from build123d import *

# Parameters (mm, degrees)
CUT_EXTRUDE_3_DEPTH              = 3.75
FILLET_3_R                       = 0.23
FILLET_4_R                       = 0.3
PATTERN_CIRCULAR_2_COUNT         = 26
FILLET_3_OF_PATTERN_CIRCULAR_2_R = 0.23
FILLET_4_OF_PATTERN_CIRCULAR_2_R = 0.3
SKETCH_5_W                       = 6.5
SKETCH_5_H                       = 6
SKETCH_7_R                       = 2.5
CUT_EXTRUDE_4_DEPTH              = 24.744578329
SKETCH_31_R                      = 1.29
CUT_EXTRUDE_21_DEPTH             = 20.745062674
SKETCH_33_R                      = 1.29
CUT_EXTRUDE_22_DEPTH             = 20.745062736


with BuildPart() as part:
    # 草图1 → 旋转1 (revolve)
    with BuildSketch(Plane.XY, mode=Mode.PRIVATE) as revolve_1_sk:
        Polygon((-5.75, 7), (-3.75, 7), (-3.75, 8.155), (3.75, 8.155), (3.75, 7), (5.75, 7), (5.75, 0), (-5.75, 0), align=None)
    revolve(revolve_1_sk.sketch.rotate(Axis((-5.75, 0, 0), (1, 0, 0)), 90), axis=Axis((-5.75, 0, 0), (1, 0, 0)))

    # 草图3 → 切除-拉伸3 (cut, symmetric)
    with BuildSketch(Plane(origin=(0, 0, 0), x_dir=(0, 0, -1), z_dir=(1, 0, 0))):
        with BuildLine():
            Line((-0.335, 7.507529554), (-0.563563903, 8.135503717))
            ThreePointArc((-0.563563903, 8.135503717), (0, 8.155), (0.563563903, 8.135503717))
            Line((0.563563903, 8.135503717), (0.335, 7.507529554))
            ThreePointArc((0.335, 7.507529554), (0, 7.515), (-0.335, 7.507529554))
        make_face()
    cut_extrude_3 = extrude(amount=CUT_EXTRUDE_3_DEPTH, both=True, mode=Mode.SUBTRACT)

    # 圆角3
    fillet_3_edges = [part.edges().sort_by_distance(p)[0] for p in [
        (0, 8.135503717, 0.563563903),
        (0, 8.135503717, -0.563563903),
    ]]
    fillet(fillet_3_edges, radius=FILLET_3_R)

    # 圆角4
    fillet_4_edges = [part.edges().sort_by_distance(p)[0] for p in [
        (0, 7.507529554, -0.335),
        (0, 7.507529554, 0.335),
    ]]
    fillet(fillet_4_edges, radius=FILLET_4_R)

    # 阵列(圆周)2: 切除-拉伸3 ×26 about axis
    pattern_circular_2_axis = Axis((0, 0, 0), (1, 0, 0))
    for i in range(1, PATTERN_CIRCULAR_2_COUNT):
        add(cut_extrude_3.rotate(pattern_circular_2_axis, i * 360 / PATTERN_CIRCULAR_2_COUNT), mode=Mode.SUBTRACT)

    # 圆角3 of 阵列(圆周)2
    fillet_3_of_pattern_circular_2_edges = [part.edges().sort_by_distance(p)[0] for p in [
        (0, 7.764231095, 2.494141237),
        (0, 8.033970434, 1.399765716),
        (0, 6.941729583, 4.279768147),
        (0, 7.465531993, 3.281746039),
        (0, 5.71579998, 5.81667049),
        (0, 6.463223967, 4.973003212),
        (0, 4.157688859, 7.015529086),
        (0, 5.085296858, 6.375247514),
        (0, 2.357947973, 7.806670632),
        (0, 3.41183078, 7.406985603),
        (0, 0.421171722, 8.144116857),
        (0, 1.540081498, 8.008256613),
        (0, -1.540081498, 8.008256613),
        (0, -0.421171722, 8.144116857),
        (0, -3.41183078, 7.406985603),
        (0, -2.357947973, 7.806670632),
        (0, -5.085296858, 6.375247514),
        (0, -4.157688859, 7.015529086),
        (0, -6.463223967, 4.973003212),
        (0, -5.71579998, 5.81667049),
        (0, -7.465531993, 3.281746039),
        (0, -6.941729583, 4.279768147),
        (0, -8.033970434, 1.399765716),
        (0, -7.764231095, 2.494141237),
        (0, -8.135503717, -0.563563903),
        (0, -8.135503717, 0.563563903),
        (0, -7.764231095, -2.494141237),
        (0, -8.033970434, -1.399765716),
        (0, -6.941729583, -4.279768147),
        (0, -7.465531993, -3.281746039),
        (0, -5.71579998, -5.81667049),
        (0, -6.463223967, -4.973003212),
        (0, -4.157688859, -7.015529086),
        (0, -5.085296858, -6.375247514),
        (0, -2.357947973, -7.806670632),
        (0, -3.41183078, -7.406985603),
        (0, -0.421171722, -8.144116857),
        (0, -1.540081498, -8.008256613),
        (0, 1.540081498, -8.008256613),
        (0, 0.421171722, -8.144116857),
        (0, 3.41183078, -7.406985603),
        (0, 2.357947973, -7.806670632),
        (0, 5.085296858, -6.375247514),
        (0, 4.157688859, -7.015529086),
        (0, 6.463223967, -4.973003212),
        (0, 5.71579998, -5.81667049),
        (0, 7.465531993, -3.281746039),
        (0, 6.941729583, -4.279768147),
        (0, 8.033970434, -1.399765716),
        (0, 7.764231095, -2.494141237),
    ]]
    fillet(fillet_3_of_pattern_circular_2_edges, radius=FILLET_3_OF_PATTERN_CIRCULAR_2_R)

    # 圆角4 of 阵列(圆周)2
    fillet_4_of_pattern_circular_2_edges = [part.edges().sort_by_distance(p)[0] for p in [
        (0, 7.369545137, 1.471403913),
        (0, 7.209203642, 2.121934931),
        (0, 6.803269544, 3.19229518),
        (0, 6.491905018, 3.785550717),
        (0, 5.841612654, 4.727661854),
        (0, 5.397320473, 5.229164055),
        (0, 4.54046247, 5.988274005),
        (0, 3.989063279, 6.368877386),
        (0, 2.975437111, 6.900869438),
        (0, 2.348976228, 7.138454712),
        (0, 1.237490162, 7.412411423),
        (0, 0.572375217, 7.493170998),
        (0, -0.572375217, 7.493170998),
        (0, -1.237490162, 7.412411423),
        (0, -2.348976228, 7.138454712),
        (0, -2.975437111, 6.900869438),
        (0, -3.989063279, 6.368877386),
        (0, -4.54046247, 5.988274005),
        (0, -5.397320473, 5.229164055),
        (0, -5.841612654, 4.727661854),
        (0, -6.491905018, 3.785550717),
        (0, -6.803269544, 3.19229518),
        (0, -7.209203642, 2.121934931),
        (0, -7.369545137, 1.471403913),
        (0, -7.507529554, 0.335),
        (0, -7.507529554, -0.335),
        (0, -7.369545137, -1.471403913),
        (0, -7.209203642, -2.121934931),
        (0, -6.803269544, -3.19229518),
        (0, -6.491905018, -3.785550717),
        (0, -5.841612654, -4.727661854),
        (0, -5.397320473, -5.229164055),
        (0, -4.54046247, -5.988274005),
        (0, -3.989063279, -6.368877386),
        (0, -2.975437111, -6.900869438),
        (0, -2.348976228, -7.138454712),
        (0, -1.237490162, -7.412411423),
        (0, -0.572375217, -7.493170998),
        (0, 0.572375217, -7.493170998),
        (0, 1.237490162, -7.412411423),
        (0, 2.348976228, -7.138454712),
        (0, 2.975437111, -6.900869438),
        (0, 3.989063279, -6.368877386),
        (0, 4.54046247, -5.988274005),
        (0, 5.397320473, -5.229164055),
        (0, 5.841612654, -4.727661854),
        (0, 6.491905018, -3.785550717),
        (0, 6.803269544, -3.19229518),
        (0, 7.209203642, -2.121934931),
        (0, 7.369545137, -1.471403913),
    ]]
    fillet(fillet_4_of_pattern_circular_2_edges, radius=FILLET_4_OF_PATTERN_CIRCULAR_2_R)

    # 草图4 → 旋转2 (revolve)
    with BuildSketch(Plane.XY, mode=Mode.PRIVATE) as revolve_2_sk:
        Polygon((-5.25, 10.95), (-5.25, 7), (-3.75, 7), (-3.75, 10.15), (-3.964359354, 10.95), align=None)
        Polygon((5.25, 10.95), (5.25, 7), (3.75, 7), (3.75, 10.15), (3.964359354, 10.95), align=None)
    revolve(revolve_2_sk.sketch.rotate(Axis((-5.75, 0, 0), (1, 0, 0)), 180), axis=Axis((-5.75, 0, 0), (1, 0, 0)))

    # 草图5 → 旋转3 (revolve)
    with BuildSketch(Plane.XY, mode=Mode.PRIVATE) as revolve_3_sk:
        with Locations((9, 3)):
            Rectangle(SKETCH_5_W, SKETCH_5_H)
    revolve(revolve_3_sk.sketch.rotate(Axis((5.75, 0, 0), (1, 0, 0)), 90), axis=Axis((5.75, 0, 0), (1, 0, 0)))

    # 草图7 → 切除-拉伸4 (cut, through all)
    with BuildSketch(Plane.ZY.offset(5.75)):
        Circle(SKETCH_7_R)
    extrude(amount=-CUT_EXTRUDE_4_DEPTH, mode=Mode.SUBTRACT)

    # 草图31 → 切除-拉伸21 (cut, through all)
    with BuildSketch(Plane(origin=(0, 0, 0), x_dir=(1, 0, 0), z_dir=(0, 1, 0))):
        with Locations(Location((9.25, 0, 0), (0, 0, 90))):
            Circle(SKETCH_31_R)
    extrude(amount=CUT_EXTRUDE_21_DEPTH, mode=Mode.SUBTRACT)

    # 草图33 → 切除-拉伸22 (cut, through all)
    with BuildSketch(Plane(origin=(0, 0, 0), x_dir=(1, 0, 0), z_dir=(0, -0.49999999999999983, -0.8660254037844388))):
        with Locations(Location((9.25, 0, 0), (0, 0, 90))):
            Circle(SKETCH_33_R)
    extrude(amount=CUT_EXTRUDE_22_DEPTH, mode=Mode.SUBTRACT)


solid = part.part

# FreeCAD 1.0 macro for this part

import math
import FreeCAD as App
import Part
import Sketcher

V = App.Vector
Q = App.Units.Quantity


def edges_at(feature, points):
    """Names of the edges that pass closest to the given points."""
    edges = feature.Shape.Edges
    near = lambda p: min(range(len(edges)), key=lambda i: edges[i].distToShape(Part.Vertex(*p))[0])
    return sorted({f"Edge{near(p) + 1}" for p in points})

doc = App.newDocument("Part")
body = doc.addObject("PartDesign::Body", "Body")

# Sketch on XY plane
sketch1 = doc.addObject("Sketcher::SketchObject", "Sketch")
body.addObject(sketch1)
sketch1.AttachmentSupport = (doc.XY_Plane, [""])
sketch1.MapMode = "FlatFace"
sketch1.addGeometry(Part.LineSegment(V(-3.8, 7, 0), V(-5.8, 7, 0)), False)
sketch1.addGeometry(Part.LineSegment(V(-5.8, 7, 0), V(-5.8, 0, 0)), False)
sketch1.addGeometry(Part.LineSegment(V(-5.8, 0, 0), V(5.8, 0, 0)), False)
sketch1.addGeometry(Part.LineSegment(V(5.8, 0, 0), V(5.8, 7, 0)), False)
sketch1.addGeometry(Part.LineSegment(V(5.8, 7, 0), V(3.8, 7, 0)), False)
sketch1.addGeometry(Part.LineSegment(V(3.8, 7, 0), V(3.8, 8.2, 0)), False)
sketch1.addGeometry(Part.LineSegment(V(3.8, 8.2, 0), V(-3.8, 8.2, 0)), False)
sketch1.addGeometry(Part.LineSegment(V(-3.8, 8.2, 0), V(-3.8, 7, 0)), False)
sketch1.addConstraint(Sketcher.Constraint("Coincident", 0, 2, 1, 1))
sketch1.addConstraint(Sketcher.Constraint("Coincident", 1, 2, 2, 1))
sketch1.addConstraint(Sketcher.Constraint("Coincident", 2, 2, 3, 1))
sketch1.addConstraint(Sketcher.Constraint("Coincident", 3, 2, 4, 1))
sketch1.addConstraint(Sketcher.Constraint("Coincident", 4, 2, 5, 1))
sketch1.addConstraint(Sketcher.Constraint("Coincident", 5, 2, 6, 1))
sketch1.addConstraint(Sketcher.Constraint("Coincident", 6, 2, 7, 1))
sketch1.addConstraint(Sketcher.Constraint("Coincident", 7, 2, 0, 1))
sketch1.addConstraint(Sketcher.Constraint("Horizontal", 0))
sketch1.addConstraint(Sketcher.Constraint("Vertical", 1))
sketch1.addConstraint(Sketcher.Constraint("Horizontal", 2))
sketch1.addConstraint(Sketcher.Constraint("Vertical", 3))
sketch1.addConstraint(Sketcher.Constraint("Horizontal", 4))
sketch1.addConstraint(Sketcher.Constraint("Vertical", 5))
sketch1.addConstraint(Sketcher.Constraint("Horizontal", 6))
sketch1.addConstraint(Sketcher.Constraint("Vertical", 7))
sketch1.addConstraint(Sketcher.Constraint("Symmetric", 1, 2, 2, 2, -1, 1))
sketch1.addConstraint(Sketcher.Constraint("Symmetric", 4, 2, 7, 2, -2))
sketch1.addConstraint(Sketcher.Constraint("DistanceX", 0, 2, 0, 1, 2.0))
sketch1.addConstraint(Sketcher.Constraint("DistanceY", 1, 2, 1, 1, 7.0))
sketch1.addConstraint(Sketcher.Constraint("DistanceX", 2, 1, 2, 2, 11.5))
sketch1.addConstraint(Sketcher.Constraint("DistanceY", 5, 1, 5, 2, 1.155))
revolution = doc.addObject("PartDesign::Revolution", "Revolution")
body.addObject(revolution)
revolution.Profile = sketch1
revolution.ReferenceAxis = (sketch1, ["H_Axis"])
revolution.Angle = 360

# Sketch on YZ plane
sketch2 = doc.addObject("Sketcher::SketchObject", "Sketch001")
body.addObject(sketch2)
sketch2.AttachmentSupport = (doc.YZ_Plane, [""])
sketch2.MapMode = "FlatFace"
sketch2.addGeometry(Part.LineSegment(V(8.1, 0.6, 0), V(7.5, 0.3, 0)), False)
sketch2.addGeometry(Part.ArcOfCircle(Part.Circle(V(0, 0, 0), V(0, 0, 1), 7.5), math.radians(-2.55), math.radians(2.55)), False)
sketch2.addGeometry(Part.LineSegment(V(7.5, -0.3, 0), V(8.1, -0.6, 0)), False)
sketch2.addGeometry(Part.ArcOfCircle(Part.Circle(V(0, 0, 0), V(0, 0, 1), 8.2), math.radians(-3.96), math.radians(3.96)), False)
sketch2.addConstraint(Sketcher.Constraint("Coincident", 0, 2, 1, 2))
sketch2.addConstraint(Sketcher.Constraint("Coincident", 1, 1, 2, 1))
sketch2.addConstraint(Sketcher.Constraint("Coincident", 2, 2, 3, 1))
sketch2.addConstraint(Sketcher.Constraint("Coincident", 3, 2, 0, 1))
sketch2.addConstraint(Sketcher.Constraint("Coincident", 1, 3, -1, 1))
sketch2.addConstraint(Sketcher.Constraint("Coincident", 3, 3, -1, 1))
sketch2.addConstraint(Sketcher.Constraint("Vertical", 0, 2, 1, 1))
sketch2.addConstraint(Sketcher.Constraint("Vertical", 2, 2, 3, 2))
sketch2.addConstraint(Sketcher.Constraint("Angle", 0, Q("-160 deg")))
sketch2.addConstraint(Sketcher.Constraint("Radius", 1, 7.515))
sketch2.addConstraint(Sketcher.Constraint("Radius", 3, 8.155))
sketch2.addConstraint(Sketcher.Constraint("DistanceY", 1, 1, 0, 2, 0.67))
pocket1 = doc.addObject("PartDesign::Pocket", "Pocket")
body.addObject(pocket1)
pocket1.Profile = sketch2
pocket1.Length = 7.5
pocket1.Midplane = True
doc.recompute()

fillet = doc.addObject("PartDesign::Fillet", "Fillet")
body.addObject(fillet)
fillet.Base = (pocket1, edges_at(pocket1, [(0, 8.136, 0.564), (0, 8.136, -0.564)]))
fillet.Radius = 0.23
doc.recompute()

fillet2 = doc.addObject("PartDesign::Fillet", "Fillet001")
body.addObject(fillet2)
fillet2.Base = (fillet, edges_at(fillet, [(0, 7.508, -0.335), (0, 7.508, 0.335)]))
fillet2.Radius = 0.3
doc.recompute()

polarpattern = doc.addObject("PartDesign::PolarPattern", "PolarPattern")
body.addObject(polarpattern)
polarpattern.Originals = [pocket1]
polarpattern.Axis = (doc.X_Axis, [""])
polarpattern.Angle = 360
polarpattern.Occurrences = 26
body.Tip = polarpattern
doc.recompute()

fillet3 = doc.addObject("PartDesign::Fillet", "Fillet002")
body.addObject(fillet3)
fillet3.Base = (polarpattern, edges_at(polarpattern, [
    (0, 7.764, 2.494),
    (0, 8.034, 1.4),
    (0, 6.942, 4.28),
    (0, 7.466, 3.282),
    (0, 5.716, 5.817),
    (0, 6.463, 4.973),
    (0, 4.158, 7.016),
    (0, 5.085, 6.375),
    (0, 2.358, 7.807),
    (0, 3.412, 7.407),
    (0, 0.421, 8.144),
    (0, 1.54, 8.008),
    (0, -1.54, 8.008),
    (0, -0.421, 8.144),
    (0, -3.412, 7.407),
    (0, -2.358, 7.807),
    (0, -5.085, 6.375),
    (0, -4.158, 7.016),
    (0, -6.463, 4.973),
    (0, -5.716, 5.817),
    (0, -7.466, 3.282),
    (0, -6.942, 4.28),
    (0, -8.034, 1.4),
    (0, -7.764, 2.494),
    (0, -8.136, -0.564),
    (0, -8.136, 0.564),
    (0, -7.764, -2.494),
    (0, -8.034, -1.4),
    (0, -6.942, -4.28),
    (0, -7.466, -3.282),
    (0, -5.716, -5.817),
    (0, -6.463, -4.973),
    (0, -4.158, -7.016),
    (0, -5.085, -6.375),
    (0, -2.358, -7.807),
    (0, -3.412, -7.407),
    (0, -0.421, -8.144),
    (0, -1.54, -8.008),
    (0, 1.54, -8.008),
    (0, 0.421, -8.144),
    (0, 3.412, -7.407),
    (0, 2.358, -7.807),
    (0, 5.085, -6.375),
    (0, 4.158, -7.016),
    (0, 6.463, -4.973),
    (0, 5.716, -5.817),
    (0, 7.466, -3.282),
    (0, 6.942, -4.28),
    (0, 8.034, -1.4),
    (0, 7.764, -2.494),
]))
fillet3.Radius = 0.23
doc.recompute()

fillet4 = doc.addObject("PartDesign::Fillet", "Fillet003")
body.addObject(fillet4)
fillet4.Base = (fillet3, edges_at(fillet3, [
    (0, 7.37, 1.471),
    (0, 7.209, 2.122),
    (0, 6.803, 3.192),
    (0, 6.492, 3.786),
    (0, 5.842, 4.728),
    (0, 5.397, 5.229),
    (0, 4.54, 5.988),
    (0, 3.989, 6.369),
    (0, 2.975, 6.901),
    (0, 2.349, 7.138),
    (0, 1.237, 7.412),
    (0, 0.572, 7.493),
    (0, -0.572, 7.493),
    (0, -1.237, 7.412),
    (0, -2.349, 7.138),
    (0, -2.975, 6.901),
    (0, -3.989, 6.369),
    (0, -4.54, 5.988),
    (0, -5.397, 5.229),
    (0, -5.842, 4.728),
    (0, -6.492, 3.786),
    (0, -6.803, 3.192),
    (0, -7.209, 2.122),
    (0, -7.37, 1.471),
    (0, -7.508, 0.335),
    (0, -7.508, -0.335),
    (0, -7.37, -1.471),
    (0, -7.209, -2.122),
    (0, -6.803, -3.192),
    (0, -6.492, -3.786),
    (0, -5.842, -4.728),
    (0, -5.397, -5.229),
    (0, -4.54, -5.988),
    (0, -3.989, -6.369),
    (0, -2.975, -6.901),
    (0, -2.349, -7.138),
    (0, -1.237, -7.412),
    (0, -0.572, -7.493),
    (0, 0.572, -7.493),
    (0, 1.237, -7.412),
    (0, 2.349, -7.138),
    (0, 2.975, -6.901),
    (0, 3.989, -6.369),
    (0, 4.54, -5.988),
    (0, 5.397, -5.229),
    (0, 5.842, -4.728),
    (0, 6.492, -3.786),
    (0, 6.803, -3.192),
    (0, 7.209, -2.122),
    (0, 7.37, -1.471),
]))
fillet4.Radius = 0.3

# Sketch on XY plane
sketch3 = doc.addObject("Sketcher::SketchObject", "Sketch002")
body.addObject(sketch3)
sketch3.AttachmentSupport = (doc.XY_Plane, [""])
sketch3.MapMode = "FlatFace"
sketch3.addGeometry(Part.LineSegment(V(-5.2, 10.9, 0), V(-5.2, 7, 0)), False)
sketch3.addGeometry(Part.LineSegment(V(-5.2, 7, 0), V(-3.8, 7, 0)), False)
sketch3.addGeometry(Part.LineSegment(V(-3.8, 7, 0), V(-3.8, 10.2, 0)), False)
sketch3.addGeometry(Part.LineSegment(V(-3.8, 10.2, 0), V(-4, 10.9, 0)), False)
sketch3.addGeometry(Part.LineSegment(V(-4, 10.9, 0), V(-5.2, 10.9, 0)), False)
sketch3.addGeometry(Part.LineSegment(V(5.2, 7, 0), V(5.2, 10.9, 0)), False)
sketch3.addGeometry(Part.LineSegment(V(5.2, 10.9, 0), V(4, 10.9, 0)), False)
sketch3.addGeometry(Part.LineSegment(V(4, 10.9, 0), V(3.8, 10.2, 0)), False)
sketch3.addGeometry(Part.LineSegment(V(3.8, 10.2, 0), V(3.8, 7, 0)), False)
sketch3.addGeometry(Part.LineSegment(V(3.8, 7, 0), V(5.2, 7, 0)), False)
sketch3.addConstraint(Sketcher.Constraint("Coincident", 0, 2, 1, 1))
sketch3.addConstraint(Sketcher.Constraint("Coincident", 1, 2, 2, 1))
sketch3.addConstraint(Sketcher.Constraint("Coincident", 2, 2, 3, 1))
sketch3.addConstraint(Sketcher.Constraint("Coincident", 3, 2, 4, 1))
sketch3.addConstraint(Sketcher.Constraint("Coincident", 4, 2, 0, 1))
sketch3.addConstraint(Sketcher.Constraint("Coincident", 5, 2, 6, 1))
sketch3.addConstraint(Sketcher.Constraint("Coincident", 6, 2, 7, 1))
sketch3.addConstraint(Sketcher.Constraint("Coincident", 7, 2, 8, 1))
sketch3.addConstraint(Sketcher.Constraint("Coincident", 8, 2, 9, 1))
sketch3.addConstraint(Sketcher.Constraint("Coincident", 9, 2, 5, 1))
sketch3.addConstraint(Sketcher.Constraint("Vertical", 0))
sketch3.addConstraint(Sketcher.Constraint("Horizontal", 1))
sketch3.addConstraint(Sketcher.Constraint("Vertical", 2))
sketch3.addConstraint(Sketcher.Constraint("Horizontal", 4))
sketch3.addConstraint(Sketcher.Constraint("Vertical", 5))
sketch3.addConstraint(Sketcher.Constraint("Horizontal", 6))
sketch3.addConstraint(Sketcher.Constraint("Vertical", 8))
sketch3.addConstraint(Sketcher.Constraint("Horizontal", 9))
sketch3.addConstraint(Sketcher.Constraint("Symmetric", 4, 2, 5, 2, -2))
sketch3.addConstraint(Sketcher.Constraint("Symmetric", 2, 2, 7, 2, -2))
sketch3.addConstraint(Sketcher.Constraint("Horizontal", 1, 2, 8, 2))
sketch3.addConstraint(Sketcher.Constraint("Equal", 4, 6))
sketch3.addConstraint(Sketcher.Constraint("Angle", 3, Q("105 deg")))
sketch3.addConstraint(Sketcher.Constraint("DistanceX", 1, 1, 1, 2, 1.5))
sketch3.addConstraint(Sketcher.Constraint("DistanceY", -1, 1, 0, 2, 7.0))
sketch3.addConstraint(Sketcher.Constraint("DistanceX", 2, 2, 5, 2, 9.0))
sketch3.addConstraint(Sketcher.Constraint("DistanceY", 0, 2, 0, 1, 3.95))
sketch3.addConstraint(Sketcher.Constraint("DistanceY", 2, 1, 2, 2, 3.15))
revolution2 = doc.addObject("PartDesign::Revolution", "Revolution001")
body.addObject(revolution2)
revolution2.Profile = sketch3
revolution2.ReferenceAxis = (sketch3, ["H_Axis"])
revolution2.Angle = 360

# Sketch on XY plane
sketch4 = doc.addObject("Sketcher::SketchObject", "Sketch003")
body.addObject(sketch4)
sketch4.AttachmentSupport = (doc.XY_Plane, [""])
sketch4.MapMode = "FlatFace"
sketch4.addGeometry(Part.LineSegment(V(6, 6, 0), V(6, 0, 0)), False)
sketch4.addGeometry(Part.LineSegment(V(6, 0, 0), V(12, 0, 0)), False)
sketch4.addGeometry(Part.LineSegment(V(12, 0, 0), V(12, 6, 0)), False)
sketch4.addGeometry(Part.LineSegment(V(12, 6, 0), V(6, 6, 0)), False)
sketch4.addConstraint(Sketcher.Constraint("Coincident", 0, 2, 1, 1))
sketch4.addConstraint(Sketcher.Constraint("Coincident", 1, 2, 2, 1))
sketch4.addConstraint(Sketcher.Constraint("Coincident", 2, 2, 3, 1))
sketch4.addConstraint(Sketcher.Constraint("Coincident", 3, 2, 0, 1))
sketch4.addConstraint(Sketcher.Constraint("Vertical", 0))
sketch4.addConstraint(Sketcher.Constraint("Horizontal", 1))
sketch4.addConstraint(Sketcher.Constraint("Vertical", 2))
sketch4.addConstraint(Sketcher.Constraint("Horizontal", 3))
sketch4.addConstraint(Sketcher.Constraint("PointOnObject", 0, 2, -1))
sketch4.addConstraint(Sketcher.Constraint("DistanceY", 0, 2, 0, 1, 6.0))
sketch4.addConstraint(Sketcher.Constraint("DistanceX", 1, 1, 1, 2, 6.5))
sketch4.addConstraint(Sketcher.Constraint("DistanceX", -1, 1, 0, 2, 5.75))
revolution3 = doc.addObject("PartDesign::Revolution", "Revolution002")
body.addObject(revolution3)
revolution3.Profile = sketch4
revolution3.ReferenceAxis = (sketch4, ["H_Axis"])
revolution3.Angle = 360

# Sketch on YZ plane
sketch5 = doc.addObject("Sketcher::SketchObject", "Sketch004")
body.addObject(sketch5)
sketch5.AttachmentSupport = (doc.YZ_Plane, [""])
sketch5.MapMode = "FlatFace"
sketch5.AttachmentOffset = App.Placement(V(0, 0, -5.75), App.Rotation())
sketch5.addGeometry(Part.Circle(V(0, 0, 0), V(0, 0, 1), 2.5), False)
sketch5.addConstraint(Sketcher.Constraint("Coincident", 0, 3, -1, 1))
sketch5.addConstraint(Sketcher.Constraint("Diameter", 0, 5.0))
pocket2 = doc.addObject("PartDesign::Pocket", "Pocket001")
body.addObject(pocket2)
pocket2.Profile = sketch5
pocket2.Type = "ThroughAll"
pocket2.Reversed = True

# Sketch on XZ plane
sketch6 = doc.addObject("Sketcher::SketchObject", "Sketch005")
body.addObject(sketch6)
sketch6.AttachmentSupport = (doc.XZ_Plane, [""])
sketch6.MapMode = "FlatFace"
sketch6.addGeometry(Part.Circle(V(9.2, 0, 0), V(0, 0, 1), 1.3), False)
sketch6.addConstraint(Sketcher.Constraint("PointOnObject", 0, 3, -1))
sketch6.addConstraint(Sketcher.Constraint("Diameter", 0, 2.58))
sketch6.addConstraint(Sketcher.Constraint("DistanceX", -1, 1, 0, 3, 9.25))
pocket3 = doc.addObject("PartDesign::Pocket", "Pocket002")
body.addObject(pocket3)
pocket3.Profile = sketch6
pocket3.Type = "ThroughAll"

# Sketch on an angled plane
sketch7 = doc.addObject("Sketcher::SketchObject", "Sketch006")
body.addObject(sketch7)
sketch7.Placement = App.Placement(V(0, 0, 0), App.Rotation(V(1, 0, 0), V(0, -0.866025404, 0.5), V(0, -0.5, -0.866025404), "ZXY"))
sketch7.addGeometry(Part.Circle(V(9.2, 0, 0), V(0, 0, 1), 1.3), False)
sketch7.addConstraint(Sketcher.Constraint("PointOnObject", 0, 3, -1))
sketch7.addConstraint(Sketcher.Constraint("Diameter", 0, 2.58))
sketch7.addConstraint(Sketcher.Constraint("DistanceX", -1, 1, 0, 3, 9.25))
pocket4 = doc.addObject("PartDesign::Pocket", "Pocket003")
body.addObject(pocket4)
pocket4.Profile = sketch7
pocket4.Type = "ThroughAll"
pocket4.Reversed = True

doc.recompute()
